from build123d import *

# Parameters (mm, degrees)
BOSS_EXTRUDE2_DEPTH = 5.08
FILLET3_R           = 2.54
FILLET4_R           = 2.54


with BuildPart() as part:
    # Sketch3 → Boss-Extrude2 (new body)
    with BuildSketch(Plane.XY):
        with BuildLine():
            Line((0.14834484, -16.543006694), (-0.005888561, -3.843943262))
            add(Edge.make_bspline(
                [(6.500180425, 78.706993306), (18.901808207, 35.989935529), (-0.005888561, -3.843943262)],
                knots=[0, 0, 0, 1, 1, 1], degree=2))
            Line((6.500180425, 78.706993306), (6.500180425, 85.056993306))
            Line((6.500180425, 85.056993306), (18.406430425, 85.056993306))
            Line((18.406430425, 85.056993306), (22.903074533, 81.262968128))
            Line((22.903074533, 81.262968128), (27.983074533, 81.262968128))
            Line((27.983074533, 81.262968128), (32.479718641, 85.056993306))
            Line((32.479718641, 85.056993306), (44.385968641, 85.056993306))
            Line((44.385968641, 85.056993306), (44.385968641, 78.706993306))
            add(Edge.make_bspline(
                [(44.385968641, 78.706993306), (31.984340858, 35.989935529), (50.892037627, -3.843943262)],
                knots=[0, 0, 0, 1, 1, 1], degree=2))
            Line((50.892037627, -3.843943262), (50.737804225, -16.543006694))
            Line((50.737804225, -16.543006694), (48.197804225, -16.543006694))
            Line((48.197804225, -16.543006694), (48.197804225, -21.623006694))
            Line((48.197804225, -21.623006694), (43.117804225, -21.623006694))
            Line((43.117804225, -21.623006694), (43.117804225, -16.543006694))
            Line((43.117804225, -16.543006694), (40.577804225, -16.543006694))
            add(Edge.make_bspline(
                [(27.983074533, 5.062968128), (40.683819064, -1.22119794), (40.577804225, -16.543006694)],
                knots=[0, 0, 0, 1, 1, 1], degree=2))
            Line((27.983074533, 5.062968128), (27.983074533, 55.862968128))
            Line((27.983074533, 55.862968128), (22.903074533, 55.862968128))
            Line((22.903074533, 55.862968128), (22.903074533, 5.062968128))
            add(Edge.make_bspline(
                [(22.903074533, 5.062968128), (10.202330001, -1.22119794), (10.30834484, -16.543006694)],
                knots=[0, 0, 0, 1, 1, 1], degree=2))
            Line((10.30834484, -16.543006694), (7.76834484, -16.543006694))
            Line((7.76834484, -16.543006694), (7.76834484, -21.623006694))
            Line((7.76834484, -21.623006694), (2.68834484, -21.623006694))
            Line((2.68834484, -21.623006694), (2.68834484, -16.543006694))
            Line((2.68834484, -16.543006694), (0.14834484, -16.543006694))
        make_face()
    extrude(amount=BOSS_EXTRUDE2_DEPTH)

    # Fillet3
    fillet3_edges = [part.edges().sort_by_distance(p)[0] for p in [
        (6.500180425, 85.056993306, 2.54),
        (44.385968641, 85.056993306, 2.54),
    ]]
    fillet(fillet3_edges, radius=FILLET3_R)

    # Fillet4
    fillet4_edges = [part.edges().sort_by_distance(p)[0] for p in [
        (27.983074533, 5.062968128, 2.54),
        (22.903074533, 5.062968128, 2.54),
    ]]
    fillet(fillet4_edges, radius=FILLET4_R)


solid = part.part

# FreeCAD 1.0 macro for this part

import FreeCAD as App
import Part
import Sketcher
Q = App.Units.Quantity


def edges_at(feature, points):
    """Names of the edges that pass closest to the given points."""
    edges = feature.Shape.Edges
    near = lambda p: min(range(len(edges)), key=lambda i: edges[i].distToShape(Part.Vertex(*p))[0])
    return sorted({f"Edge{near(p) + 1}" for p in points})

doc = App.newDocument("Part")
body = doc.addObject("PartDesign::Body", "Body")

# Sketch on XY plane
sketch1 = doc.addObject("Sketcher::SketchObject", "Sketch")
body.addObject(sketch1)
sketch1.AttachmentSupport = (doc.XY_Plane, [""])
sketch1.MapMode = "FlatFace"
sketch1.addGeometry([
    Part.LineSegment(App.Vector(-0.005889, -3.843943, 0), App.Vector(0.148345, -16.543007, 0)),  # 0
    Part.LineSegment(App.Vector(0.148345, -16.543007, 0), App.Vector(2.688345, -16.543007, 0)),  # 1
    Part.LineSegment(App.Vector(2.688345, -16.543007, 0), App.Vector(2.688345, -21.623007, 0)),  # 2
    Part.LineSegment(App.Vector(2.688345, -21.623007, 0), App.Vector(7.768345, -21.623007, 0)),  # 3
    Part.LineSegment(App.Vector(7.768345, -21.623007, 0), App.Vector(7.768345, -16.543007, 0)),  # 4
    Part.LineSegment(App.Vector(7.768345, -16.543007, 0), App.Vector(10.308345, -16.543007, 0)),  # 5
    Part.BSplineCurve([App.Vector(22.903075, 5.062968, 0), App.Vector(10.20233, -1.221198, 0), App.Vector(10.308345, -16.543007, 0)], [3, 3], [0, 1], False, 2, [1, 1, 1], False),  # 6
    Part.LineSegment(App.Vector(22.903075, 5.062968, 0), App.Vector(22.903075, 55.862968, 0)),  # 7
    Part.LineSegment(App.Vector(22.903075, 55.862968, 0), App.Vector(27.983075, 55.862968, 0)),  # 8
    Part.LineSegment(App.Vector(27.983075, 55.862968, 0), App.Vector(27.983075, 5.062968, 0)),  # 9
    Part.BSplineCurve([App.Vector(27.983075, 5.062968, 0), App.Vector(40.683819, -1.221198, 0), App.Vector(40.577804, -16.543007, 0)], [3, 3], [0, 1], False, 2, [1, 1, 1], False),  # 10
    Part.LineSegment(App.Vector(40.577804, -16.543007, 0), App.Vector(43.117804, -16.543007, 0)),  # 11
    Part.LineSegment(App.Vector(43.117804, -16.543007, 0), App.Vector(43.117804, -21.623007, 0)),  # 12
    Part.LineSegment(App.Vector(43.117804, -21.623007, 0), App.Vector(48.197804, -21.623007, 0)),  # 13
    Part.LineSegment(App.Vector(48.197804, -21.623007, 0), App.Vector(48.197804, -16.543007, 0)),  # 14
    Part.LineSegment(App.Vector(48.197804, -16.543007, 0), App.Vector(50.737804, -16.543007, 0)),  # 15
    Part.LineSegment(App.Vector(50.737804, -16.543007, 0), App.Vector(50.892038, -3.843943, 0)),  # 16
    Part.BSplineCurve([App.Vector(44.385969, 78.706993, 0), App.Vector(31.984341, 35.989936, 0), App.Vector(50.892038, -3.843943, 0)], [3, 3], [0, 1], False, 2, [1, 1, 1], False),  # 17
    Part.LineSegment(App.Vector(44.385969, 78.706993, 0), App.Vector(44.385969, 85.056993, 0)),  # 18
    Part.LineSegment(App.Vector(44.385969, 85.056993, 0), App.Vector(32.479719, 85.056993, 0)),  # 19
    Part.LineSegment(App.Vector(32.479719, 85.056993, 0), App.Vector(27.983075, 81.262968, 0)),  # 20
    Part.LineSegment(App.Vector(27.983075, 81.262968, 0), App.Vector(22.903075, 81.262968, 0)),  # 21
    Part.LineSegment(App.Vector(22.903075, 81.262968, 0), App.Vector(18.40643, 85.056993, 0)),  # 22
    Part.LineSegment(App.Vector(18.40643, 85.056993, 0), App.Vector(6.50018, 85.056993, 0)),  # 23
    Part.LineSegment(App.Vector(6.50018, 85.056993, 0), App.Vector(6.50018, 78.706993, 0)),  # 24
    Part.BSplineCurve([App.Vector(6.50018, 78.706993, 0), App.Vector(18.901808, 35.989936, 0), App.Vector(-0.005889, -3.843943, 0)], [3, 3], [0, 1], False, 2, [1, 1, 1], False),  # 25
], False)
sketch1.addConstraint([
    Sketcher.Constraint("Block", 6),
    Sketcher.Constraint("Block", 10),
    Sketcher.Constraint("Block", 17),
    Sketcher.Constraint("Block", 25),
    Sketcher.Constraint("Coincident", 0, 2, 1, 1),
    Sketcher.Constraint("Coincident", 1, 2, 2, 1),
    Sketcher.Constraint("Coincident", 2, 2, 3, 1),
    Sketcher.Constraint("Coincident", 3, 2, 4, 1),
    Sketcher.Constraint("Coincident", 4, 2, 5, 1),
    Sketcher.Constraint("Coincident", 5, 2, 6, 2),
    Sketcher.Constraint("Coincident", 6, 1, 7, 1),
    Sketcher.Constraint("Coincident", 7, 2, 8, 1),
    Sketcher.Constraint("Coincident", 8, 2, 9, 1),
    Sketcher.Constraint("Coincident", 9, 2, 10, 1),
    Sketcher.Constraint("Coincident", 10, 2, 11, 1),
    Sketcher.Constraint("Coincident", 11, 2, 12, 1),
    Sketcher.Constraint("Coincident", 12, 2, 13, 1),
    Sketcher.Constraint("Coincident", 13, 2, 14, 1),
    Sketcher.Constraint("Coincident", 14, 2, 15, 1),
    Sketcher.Constraint("Coincident", 15, 2, 16, 1),
    Sketcher.Constraint("Coincident", 16, 2, 17, 2),
    Sketcher.Constraint("Coincident", 17, 1, 18, 1),
    Sketcher.Constraint("Coincident", 18, 2, 19, 1),
    Sketcher.Constraint("Coincident", 19, 2, 20, 1),
    Sketcher.Constraint("Coincident", 20, 2, 21, 1),
    Sketcher.Constraint("Coincident", 21, 2, 22, 1),
    Sketcher.Constraint("Coincident", 22, 2, 23, 1),
    Sketcher.Constraint("Coincident", 23, 2, 24, 1),
    Sketcher.Constraint("Coincident", 24, 2, 25, 1),
    Sketcher.Constraint("Coincident", 25, 2, 0, 1),
    Sketcher.Constraint("Horizontal", 1),
    Sketcher.Constraint("Vertical", 2),
    Sketcher.Constraint("Horizontal", 3),
    Sketcher.Constraint("Vertical", 4),
    Sketcher.Constraint("Horizontal", 5),
    Sketcher.Constraint("Vertical", 7),
    Sketcher.Constraint("Horizontal", 8),
    Sketcher.Constraint("Vertical", 9),
    Sketcher.Constraint("Horizontal", 11),
    Sketcher.Constraint("Vertical", 12),
    Sketcher.Constraint("Horizontal", 13),
    Sketcher.Constraint("Vertical", 14),
    Sketcher.Constraint("Horizontal", 15),
    Sketcher.Constraint("Vertical", 18),
    Sketcher.Constraint("Horizontal", 19),
    Sketcher.Constraint("Horizontal", 21),
    Sketcher.Constraint("Horizontal", 23),
    Sketcher.Constraint("Vertical", 24),
    Sketcher.Constraint("DistanceY", 7, 1, 7, 2, Q("2 in")),
    Sketcher.Constraint("DistanceX", 1, 1, 1, 2, Q("0.1 in")),
    Sketcher.Constraint("DistanceX", 3, 1, 3, 2, Q("0.2 in")),
    Sketcher.Constraint("DistanceX", 5, 1, 5, 2, Q("0.1 in")),
    Sketcher.Constraint("DistanceX", 11, 1, 11, 2, Q("0.1 in")),
    Sketcher.Constraint("DistanceX", 13, 1, 13, 2, Q("0.2 in")),
    Sketcher.Constraint("DistanceX", 15, 1, 15, 2, Q("0.1 in")),
    Sketcher.Constraint("DistanceX", 21, 2, 21, 1, Q("0.2 in")),
    Sketcher.Constraint("DistanceY", 2, 2, 2, 1, Q("0.2 in")),
    Sketcher.Constraint("DistanceY", 4, 1, 4, 2, Q("0.2 in")),
    Sketcher.Constraint("DistanceY", 12, 2, 12, 1, Q("0.2 in")),
    Sketcher.Constraint("DistanceY", 14, 1, 14, 2, Q("0.2 in")),
    Sketcher.Constraint("DistanceY", 11, 2, 18, 2, Q("4 in")),
    Sketcher.Constraint("DistanceY", 8, 2, 20, 2, Q("1 in")),
    Sketcher.Constraint("DistanceY", 24, 2, 24, 1, Q("0.25 in")),
    Sketcher.Constraint("DistanceX", 7, 2, 20, 2, Q("0.2 in")),
    Sketcher.Constraint("DistanceX", 19, 2, 19, 1, Q("0.46875 in")),
    Sketcher.Constraint("DistanceX", 23, 2, 23, 1, Q("0.46875 in")),
])
pad1 = doc.addObject("PartDesign::Pad", "Pad")
body.addObject(pad1)
pad1.Profile = sketch1
pad1.Length = Q("0.2 in")
doc.recompute()

fillet = doc.addObject("PartDesign::Fillet", "Fillet")
body.addObject(fillet)
fillet.Base = (pad1, edges_at(pad1, [(6.5, 85.057, 2.54), (44.386, 85.057, 2.54)]))
fillet.Radius = Q("0.1 in")
doc.recompute()

fillet2 = doc.addObject("PartDesign::Fillet", "Fillet001")
body.addObject(fillet2)
fillet2.Base = (fillet, edges_at(fillet, [(27.983, 5.063, 2.54), (22.903, 5.063, 2.54)]))
fillet2.Radius = Q("0.1 in")

doc.recompute()
